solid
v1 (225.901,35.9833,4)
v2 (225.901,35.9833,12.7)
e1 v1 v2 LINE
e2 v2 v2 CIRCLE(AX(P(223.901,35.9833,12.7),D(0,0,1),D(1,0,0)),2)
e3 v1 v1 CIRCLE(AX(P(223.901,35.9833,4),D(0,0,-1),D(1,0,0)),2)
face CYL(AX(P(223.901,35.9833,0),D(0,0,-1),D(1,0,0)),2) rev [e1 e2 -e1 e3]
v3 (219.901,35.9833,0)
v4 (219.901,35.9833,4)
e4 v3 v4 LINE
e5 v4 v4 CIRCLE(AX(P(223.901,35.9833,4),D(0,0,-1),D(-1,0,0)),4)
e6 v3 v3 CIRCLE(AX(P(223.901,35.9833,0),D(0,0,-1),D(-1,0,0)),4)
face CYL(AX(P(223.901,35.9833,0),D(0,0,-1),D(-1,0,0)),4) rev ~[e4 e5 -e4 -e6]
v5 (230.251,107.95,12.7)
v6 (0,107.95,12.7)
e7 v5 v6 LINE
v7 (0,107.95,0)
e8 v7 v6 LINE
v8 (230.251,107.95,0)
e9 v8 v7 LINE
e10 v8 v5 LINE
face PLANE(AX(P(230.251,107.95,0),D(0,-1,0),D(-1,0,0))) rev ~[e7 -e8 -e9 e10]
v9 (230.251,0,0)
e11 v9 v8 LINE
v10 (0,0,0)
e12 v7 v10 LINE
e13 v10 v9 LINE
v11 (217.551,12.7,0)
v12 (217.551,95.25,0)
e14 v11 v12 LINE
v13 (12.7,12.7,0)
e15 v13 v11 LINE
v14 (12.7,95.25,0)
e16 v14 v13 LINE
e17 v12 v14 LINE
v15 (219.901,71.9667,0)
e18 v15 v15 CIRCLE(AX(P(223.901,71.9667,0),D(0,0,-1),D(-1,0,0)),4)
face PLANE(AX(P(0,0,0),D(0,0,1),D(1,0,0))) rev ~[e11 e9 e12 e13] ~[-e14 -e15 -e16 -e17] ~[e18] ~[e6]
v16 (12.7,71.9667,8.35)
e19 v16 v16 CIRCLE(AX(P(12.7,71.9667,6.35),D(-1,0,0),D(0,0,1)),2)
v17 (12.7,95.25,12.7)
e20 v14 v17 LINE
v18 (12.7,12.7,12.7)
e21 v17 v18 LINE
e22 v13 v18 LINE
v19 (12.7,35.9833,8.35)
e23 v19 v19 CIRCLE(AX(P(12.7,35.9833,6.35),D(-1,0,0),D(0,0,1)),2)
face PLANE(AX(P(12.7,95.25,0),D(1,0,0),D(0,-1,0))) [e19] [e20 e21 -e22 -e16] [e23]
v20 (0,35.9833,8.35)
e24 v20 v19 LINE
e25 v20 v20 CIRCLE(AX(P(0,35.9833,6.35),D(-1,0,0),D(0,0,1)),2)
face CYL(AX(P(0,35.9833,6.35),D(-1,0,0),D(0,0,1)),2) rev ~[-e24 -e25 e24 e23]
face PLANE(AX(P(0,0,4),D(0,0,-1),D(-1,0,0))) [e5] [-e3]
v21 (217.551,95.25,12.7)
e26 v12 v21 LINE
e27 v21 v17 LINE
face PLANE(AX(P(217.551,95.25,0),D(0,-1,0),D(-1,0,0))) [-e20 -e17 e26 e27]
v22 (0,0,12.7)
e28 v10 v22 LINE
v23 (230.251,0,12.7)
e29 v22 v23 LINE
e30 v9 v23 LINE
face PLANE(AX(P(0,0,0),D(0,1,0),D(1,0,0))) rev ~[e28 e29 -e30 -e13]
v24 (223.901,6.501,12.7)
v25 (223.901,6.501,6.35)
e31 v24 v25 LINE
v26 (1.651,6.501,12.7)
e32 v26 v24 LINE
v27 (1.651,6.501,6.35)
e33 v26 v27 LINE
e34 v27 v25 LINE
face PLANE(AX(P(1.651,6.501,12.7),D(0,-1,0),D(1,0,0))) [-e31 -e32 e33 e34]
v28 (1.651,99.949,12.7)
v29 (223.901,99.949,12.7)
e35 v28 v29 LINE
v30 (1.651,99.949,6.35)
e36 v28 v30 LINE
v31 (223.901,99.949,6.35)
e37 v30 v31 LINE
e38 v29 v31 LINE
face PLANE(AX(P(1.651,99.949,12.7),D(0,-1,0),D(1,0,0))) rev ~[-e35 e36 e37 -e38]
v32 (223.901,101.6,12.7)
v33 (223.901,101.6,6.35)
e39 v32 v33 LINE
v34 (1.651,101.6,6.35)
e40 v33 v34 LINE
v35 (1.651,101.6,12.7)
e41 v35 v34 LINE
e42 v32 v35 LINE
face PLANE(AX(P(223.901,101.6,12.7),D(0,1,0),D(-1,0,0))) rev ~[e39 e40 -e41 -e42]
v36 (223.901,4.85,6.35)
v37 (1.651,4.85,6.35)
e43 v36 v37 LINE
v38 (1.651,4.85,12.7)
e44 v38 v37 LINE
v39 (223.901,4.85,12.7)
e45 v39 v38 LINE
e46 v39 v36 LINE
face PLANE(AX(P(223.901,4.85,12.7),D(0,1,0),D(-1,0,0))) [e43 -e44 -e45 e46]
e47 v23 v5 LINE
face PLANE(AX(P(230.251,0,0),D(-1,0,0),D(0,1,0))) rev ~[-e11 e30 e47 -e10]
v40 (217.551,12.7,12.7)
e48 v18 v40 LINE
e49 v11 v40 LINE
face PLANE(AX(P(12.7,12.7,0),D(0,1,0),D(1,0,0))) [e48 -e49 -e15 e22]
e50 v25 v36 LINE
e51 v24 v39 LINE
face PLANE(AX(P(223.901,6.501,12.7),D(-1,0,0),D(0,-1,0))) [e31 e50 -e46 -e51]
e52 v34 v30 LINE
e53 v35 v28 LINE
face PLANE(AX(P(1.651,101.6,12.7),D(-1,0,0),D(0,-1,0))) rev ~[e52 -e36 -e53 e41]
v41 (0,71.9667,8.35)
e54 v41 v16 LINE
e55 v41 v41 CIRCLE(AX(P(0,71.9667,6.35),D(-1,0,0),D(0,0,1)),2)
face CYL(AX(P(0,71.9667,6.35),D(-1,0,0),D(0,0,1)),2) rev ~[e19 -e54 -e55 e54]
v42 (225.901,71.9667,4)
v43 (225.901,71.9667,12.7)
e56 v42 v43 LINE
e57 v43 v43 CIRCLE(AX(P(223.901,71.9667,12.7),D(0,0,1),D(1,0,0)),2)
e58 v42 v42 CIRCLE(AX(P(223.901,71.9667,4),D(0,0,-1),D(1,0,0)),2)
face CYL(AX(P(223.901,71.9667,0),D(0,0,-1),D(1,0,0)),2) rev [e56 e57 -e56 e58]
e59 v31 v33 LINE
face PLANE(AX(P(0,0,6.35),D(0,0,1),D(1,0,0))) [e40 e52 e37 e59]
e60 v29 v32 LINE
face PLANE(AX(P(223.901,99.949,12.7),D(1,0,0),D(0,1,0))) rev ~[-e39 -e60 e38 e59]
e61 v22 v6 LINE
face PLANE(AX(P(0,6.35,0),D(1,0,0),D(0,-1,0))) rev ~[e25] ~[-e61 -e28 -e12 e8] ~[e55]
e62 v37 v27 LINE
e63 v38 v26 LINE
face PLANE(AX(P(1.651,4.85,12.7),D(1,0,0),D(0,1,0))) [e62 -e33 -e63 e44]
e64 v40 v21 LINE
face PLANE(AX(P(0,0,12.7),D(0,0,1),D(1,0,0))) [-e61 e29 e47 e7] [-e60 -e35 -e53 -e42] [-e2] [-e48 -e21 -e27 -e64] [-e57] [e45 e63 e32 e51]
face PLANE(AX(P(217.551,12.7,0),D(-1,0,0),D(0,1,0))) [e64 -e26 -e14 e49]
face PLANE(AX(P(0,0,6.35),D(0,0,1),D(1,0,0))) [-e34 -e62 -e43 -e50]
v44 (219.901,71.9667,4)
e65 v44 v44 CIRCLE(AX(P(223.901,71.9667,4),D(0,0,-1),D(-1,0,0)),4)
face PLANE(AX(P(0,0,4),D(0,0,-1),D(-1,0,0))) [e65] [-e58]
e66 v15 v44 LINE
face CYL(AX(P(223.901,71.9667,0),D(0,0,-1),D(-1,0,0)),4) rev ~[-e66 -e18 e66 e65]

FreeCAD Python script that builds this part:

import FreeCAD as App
import Part
import Sketcher

V = App.Vector
Q = App.Units.Quantity

doc = App.newDocument("Part")
body = doc.addObject("PartDesign::Body", "Body")

# Sketch on XY plane
sketch1 = body.newObject("Sketcher::SketchObject", "Sketch")
sketch1.AttachmentSupport = (doc.getObject("XY_Plane"), [""])
sketch1.MapMode = "FlatFace"
sketch1.addGeometry(Part.LineSegment(V(0, 0, 0), V(230.3, 0, 0)), False)
sketch1.addGeometry(Part.LineSegment(V(230.3, 0, 0), V(230.3, 108, 0)), False)
sketch1.addGeometry(Part.LineSegment(V(230.3, 108, 0), V(0, 108, 0)), False)
sketch1.addGeometry(Part.LineSegment(V(0, 108, 0), V(0, 0, 0)), False)
sketch1.addGeometry(Part.Circle(V(223.9, 36, 0), V(0, 0, 1), 2), False)
sketch1.addGeometry(Part.Circle(V(223.9, 72, 0), V(0, 0, 1), 2), False)
sketch1.addConstraint(Sketcher.Constraint("Coincident", 0, 2, 1, 1))
sketch1.addConstraint(Sketcher.Constraint("Coincident", 1, 2, 2, 1))
sketch1.addConstraint(Sketcher.Constraint("Coincident", 2, 2, 3, 1))
sketch1.addConstraint(Sketcher.Constraint("Coincident", 3, 2, 0, 1))
sketch1.addConstraint(Sketcher.Constraint("Horizontal", 0))
sketch1.addConstraint(Sketcher.Constraint("Vertical", 1))
sketch1.addConstraint(Sketcher.Constraint("Horizontal", 2))
sketch1.addConstraint(Sketcher.Constraint("Vertical", 3))
sketch1.addConstraint(Sketcher.Constraint("Coincident", 3, 2, -1, 1))
sketch1.addConstraint(Sketcher.Constraint("Equal", 4, 5))
sketch1.addConstraint(Sketcher.Constraint("Vertical", 4, 3, 5, 3))
sketch1.addConstraint(Sketcher.Constraint("DistanceY", 1, 1, 1, 2, Q("4.25 in")))
sketch1.addConstraint(Sketcher.Constraint("Diameter", 4, 4.0))
sketch1.addConstraint(Sketcher.Constraint("DistanceX", 0, 1, 0, 2, Q("9.065 in")))
sketch1.addConstraint(Sketcher.Constraint("DistanceX", 4, 3, 0, 2, Q("0.25 in")))
sketch1.addConstraint(Sketcher.Constraint("DistanceY", -1, 1, 4, 3, 35.9833))
sketch1.addConstraint(Sketcher.Constraint("DistanceY", 4, 3, 5, 3, 35.9834))
pad1 = body.newObject("PartDesign::Pad", "Pad")
pad1.Profile = sketch1
pad1.Length = Q("0.5 in")

# Sketch on XY plane
sketch2 = body.newObject("Sketcher::SketchObject", "Sketch001")
sketch2.AttachmentSupport = (doc.getObject("XY_Plane"), [""])
sketch2.MapMode = "FlatFace"
sketch2.addGeometry(Part.Circle(V(223.9, 72, 0), V(0, 0, 1), 4), False)
sketch2.addGeometry(Part.Circle(V(223.9, 72, 0), V(0, 0, 1), 2), False)
sketch2.addGeometry(Part.Circle(V(223.9, 36, 0), V(0, 0, 1), 4), False)
sketch2.addGeometry(Part.Circle(V(223.9, 36, 0), V(0, 0, 1), 2), False)
sketch2.addConstraint(Sketcher.Constraint("Coincident", 1, 3, 0, 3))
sketch2.addConstraint(Sketcher.Constraint("Coincident", 3, 3, 2, 3))
sketch2.addConstraint(Sketcher.Constraint("Equal", 0, 2))
sketch2.addConstraint(Sketcher.Constraint("Equal", 1, 3))
sketch2.addConstraint(Sketcher.Constraint("Vertical", 1, 3, 2, 3))
sketch2.addConstraint(Sketcher.Constraint("Diameter", 0, 8.0))
sketch2.addConstraint(Sketcher.Constraint("Diameter", 1, 4.0))
sketch2.addConstraint(Sketcher.Constraint("DistanceX", -1, 1, 0, 3, Q("8.815 in")))
sketch2.addConstraint(Sketcher.Constraint("DistanceY", -1, 1, 0, 3, 71.9667))
sketch2.addConstraint(Sketcher.Constraint("DistanceY", -1, 1, 2, 3, 35.9833))
pocket1 = body.newObject("PartDesign::Pocket", "Pocket")
pocket1.Profile = sketch2
pocket1.Length = 4
pocket1.Reversed = True

# Sketch on XY plane
sketch3 = body.newObject("Sketcher::SketchObject", "Sketch002")
sketch3.AttachmentSupport = (doc.getObject("XY_Plane"), [""])
sketch3.MapMode = "FlatFace"
sketch3.AttachmentOffset = App.Placement(V(0, 0, 0.5 * 25.4), App.Rotation())
sketch3.addGeometry(Part.LineSegment(V(223.9, 99.9, 0), V(223.9, 101.6, 0)), False)
sketch3.addGeometry(Part.LineSegment(V(223.9, 101.6, 0), V(1.7, 101.6, 0)), False)
sketch3.addGeometry(Part.LineSegment(V(1.7, 101.6, 0), V(1.7, 99.9, 0)), False)
sketch3.addGeometry(Part.LineSegment(V(1.7, 99.9, 0), V(223.9, 99.9, 0)), False)
sketch3.addGeometry(Part.LineSegment(V(1.7, 4.8, 0), V(223.9, 4.8, 0)), False)
sketch3.addGeometry(Part.LineSegment(V(223.9, 4.8, 0), V(223.9, 6.5, 0)), False)
sketch3.addGeometry(Part.LineSegment(V(223.9, 6.5, 0), V(1.7, 6.5, 0)), False)
sketch3.addGeometry(Part.LineSegment(V(1.7, 6.5, 0), V(1.7, 4.8, 0)), False)
sketch3.addConstraint(Sketcher.Constraint("Coincident", 0, 2, 1, 1))
sketch3.addConstraint(Sketcher.Constraint("Coincident", 1, 2, 2, 1))
sketch3.addConstraint(Sketcher.Constraint("Coincident", 2, 2, 3, 1))
sketch3.addConstraint(Sketcher.Constraint("Coincident", 3, 2, 0, 1))
sketch3.addConstraint(Sketcher.Constraint("Coincident", 4, 2, 5, 1))
sketch3.addConstraint(Sketcher.Constraint("Coincident", 5, 2, 6, 1))
sketch3.addConstraint(Sketcher.Constraint("Coincident", 6, 2, 7, 1))
sketch3.addConstraint(Sketcher.Constraint("Coincident", 7, 2, 4, 1))
sketch3.addConstraint(Sketcher.Constraint("Vertical", 0))
sketch3.addConstraint(Sketcher.Constraint("Horizontal", 1))
sketch3.addConstraint(Sketcher.Constraint("Vertical", 2))
sketch3.addConstraint(Sketcher.Constraint("Horizontal", 3))
sketch3.addConstraint(Sketcher.Constraint("Horizontal", 4))
sketch3.addConstraint(Sketcher.Constraint("Vertical", 5))
sketch3.addConstraint(Sketcher.Constraint("Horizontal", 6))
sketch3.addConstraint(Sketcher.Constraint("Vertical", 7))
sketch3.addConstraint(Sketcher.Constraint("Vertical", 3, 2, 4, 2))
sketch3.addConstraint(Sketcher.Constraint("Vertical", 2, 2, 6, 2))
sketch3.addConstraint(Sketcher.Constraint("Equal", 2, 5))
sketch3.addConstraint(Sketcher.Constraint("DistanceX", 1, 2, 1, 1, Q("8.75 in")))
sketch3.addConstraint(Sketcher.Constraint("DistanceY", 0, 1, 0, 2, Q("0.065 in")))
sketch3.addConstraint(Sketcher.Constraint("DistanceX", -1, 1, 1, 2, Q("0.065 in")))
sketch3.addConstraint(Sketcher.Constraint("DistanceY", -1, 1, 0, 2, Q("4 in")))
sketch3.addConstraint(Sketcher.Constraint("DistanceY", -1, 1, 4, 2, 4.85))
pocket2 = body.newObject("PartDesign::Pocket", "Pocket001")
pocket2.Profile = sketch3
pocket2.Length = Q("0.25 in")

# Sketch on YZ plane
sketch4 = body.newObject("Sketcher::SketchObject", "Sketch003")
sketch4.AttachmentSupport = (doc.getObject("YZ_Plane"), [""])
sketch4.MapMode = "FlatFace"
sketch4.addGeometry(Part.Circle(V(36, 6.3, 0), V(0, 0, 1), 2), False)
sketch4.addGeometry(Part.Circle(V(72, 6.3, 0), V(0, 0, 1), 2), False)
sketch4.addConstraint(Sketcher.Constraint("Equal", 0, 1))
sketch4.addConstraint(Sketcher.Constraint("Horizontal", 0, 3, 1, 3))
sketch4.addConstraint(Sketcher.Constraint("Diameter", 0, 4.0))
sketch4.addConstraint(Sketcher.Constraint("DistanceY", -1, 1, 0, 3, Q("0.25 in")))
sketch4.addConstraint(Sketcher.Constraint("DistanceX", -1, 1, 0, 3, 35.9833))
sketch4.addConstraint(Sketcher.Constraint("DistanceX", 0, 3, 1, 3, 35.9834))
pocket3 = body.newObject("PartDesign::Pocket", "Pocket002")
pocket3.Profile = sketch4
pocket3.Length = Q("0.5 in")
pocket3.Reversed = True

# Sketch on XY plane
sketch5 = body.newObject("Sketcher::SketchObject", "Sketch004")
sketch5.AttachmentSupport = (doc.getObject("XY_Plane"), [""])
sketch5.MapMode = "FlatFace"
sketch5.addGeometry(Part.LineSegment(V(218, 13, 0), V(13, 13, 0)), False)
sketch5.addGeometry(Part.LineSegment(V(13, 13, 0), V(13, 95, 0)), False)
sketch5.addGeometry(Part.LineSegment(V(13, 95, 0), V(218, 95, 0)), False)
sketch5.addGeometry(Part.LineSegment(V(218, 95, 0), V(218, 13, 0)), False)
sketch5.addConstraint(Sketcher.Constraint("Coincident", 0, 2, 1, 1))
sketch5.addConstraint(Sketcher.Constraint("Coincident", 1, 2, 2, 1))
sketch5.addConstraint(Sketcher.Constraint("Coincident", 2, 2, 3, 1))
sketch5.addConstraint(Sketcher.Constraint("Coincident", 3, 2, 0, 1))
sketch5.addConstraint(Sketcher.Constraint("Horizontal", 0))
sketch5.addConstraint(Sketcher.Constraint("Vertical", 1))
sketch5.addConstraint(Sketcher.Constraint("Horizontal", 2))
sketch5.addConstraint(Sketcher.Constraint("Vertical", 3))
sketch5.addConstraint(Sketcher.Constraint("DistanceY", 1, 1, 1, 2, Q("3.25 in")))
sketch5.addConstraint(Sketcher.Constraint("DistanceX", -1, 1, 0, 2, Q("0.5 in")))
sketch5.addConstraint(Sketcher.Constraint("DistanceY", -1, 1, 0, 2, Q("0.5 in")))
sketch5.addConstraint(Sketcher.Constraint("DistanceX", 0, 2, 0, 1, Q("8.065 in")))
pocket4 = body.newObject("PartDesign::Pocket", "Pocket003")
pocket4.Profile = sketch5
pocket4.Length = Q("0.5 in")
pocket4.Reversed = True

doc.recompute()
